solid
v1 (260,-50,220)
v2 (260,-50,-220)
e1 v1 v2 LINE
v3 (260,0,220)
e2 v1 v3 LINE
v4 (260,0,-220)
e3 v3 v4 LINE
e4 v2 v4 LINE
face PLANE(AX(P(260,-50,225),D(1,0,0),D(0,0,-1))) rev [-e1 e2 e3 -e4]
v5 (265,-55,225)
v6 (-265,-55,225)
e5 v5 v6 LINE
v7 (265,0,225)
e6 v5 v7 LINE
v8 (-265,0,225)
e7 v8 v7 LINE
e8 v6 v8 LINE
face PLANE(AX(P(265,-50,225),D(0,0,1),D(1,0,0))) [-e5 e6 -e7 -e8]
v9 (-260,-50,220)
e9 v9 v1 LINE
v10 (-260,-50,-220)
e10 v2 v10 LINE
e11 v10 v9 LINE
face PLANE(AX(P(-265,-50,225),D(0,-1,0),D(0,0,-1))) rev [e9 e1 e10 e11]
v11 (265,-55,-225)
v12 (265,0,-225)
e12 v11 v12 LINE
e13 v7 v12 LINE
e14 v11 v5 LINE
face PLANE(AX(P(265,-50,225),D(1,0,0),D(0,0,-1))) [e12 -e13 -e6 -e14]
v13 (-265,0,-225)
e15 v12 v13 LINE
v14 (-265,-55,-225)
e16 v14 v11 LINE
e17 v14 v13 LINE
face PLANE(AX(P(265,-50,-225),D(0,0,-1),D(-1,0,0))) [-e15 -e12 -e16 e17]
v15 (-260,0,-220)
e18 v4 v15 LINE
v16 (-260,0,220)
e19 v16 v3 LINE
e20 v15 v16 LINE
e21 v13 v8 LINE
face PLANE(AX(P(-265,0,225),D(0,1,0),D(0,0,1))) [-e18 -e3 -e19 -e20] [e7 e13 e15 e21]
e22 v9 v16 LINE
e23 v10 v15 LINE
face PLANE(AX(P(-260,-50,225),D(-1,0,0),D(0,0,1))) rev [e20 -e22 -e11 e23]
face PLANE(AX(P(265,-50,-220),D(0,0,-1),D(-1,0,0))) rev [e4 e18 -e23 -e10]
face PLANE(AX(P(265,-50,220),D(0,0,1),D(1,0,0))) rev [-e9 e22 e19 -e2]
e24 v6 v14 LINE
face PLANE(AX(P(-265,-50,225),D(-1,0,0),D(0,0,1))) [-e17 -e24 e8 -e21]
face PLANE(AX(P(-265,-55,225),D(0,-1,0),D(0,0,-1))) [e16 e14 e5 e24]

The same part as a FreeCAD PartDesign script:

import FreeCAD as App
import Part
import Sketcher

V = App.Vector

doc = App.newDocument("Part")
body = doc.addObject("PartDesign::Body", "Body")

sketch1 = body.newObject("Sketcher::SketchObject", "Sketch")
sketch1.AttachmentSupport = (doc.getObject("XZ_Plane"), [""])
sketch1.MapMode = "FlatFace"
sketch1.addGeometry(Part.LineSegment(V(-265, -225, 0), V(-265, 225, 0)), False)
sketch1.addGeometry(Part.LineSegment(V(-265, 225, 0), V(265, 225, 0)), False)
sketch1.addGeometry(Part.LineSegment(V(265, 225, 0), V(265, -225, 0)), False)
sketch1.addGeometry(Part.LineSegment(V(265, -225, 0), V(-265, -225, 0)), False)
sketch1.addGeometry(Part.LineSegment(V(260, 220, 0), V(-260, 220, 0)), False)
sketch1.addGeometry(Part.LineSegment(V(-260, 220, 0), V(-260, -220, 0)), False)
sketch1.addGeometry(Part.LineSegment(V(-260, -220, 0), V(260, -220, 0)), False)
sketch1.addGeometry(Part.LineSegment(V(260, -220, 0), V(260, 220, 0)), False)
sketch1.addConstraint(Sketcher.Constraint("Coincident", 0, 2, 1, 1))
sketch1.addConstraint(Sketcher.Constraint("Coincident", 1, 2, 2, 1))
sketch1.addConstraint(Sketcher.Constraint("Coincident", 2, 2, 3, 1))
sketch1.addConstraint(Sketcher.Constraint("Coincident", 3, 2, 0, 1))
sketch1.addConstraint(Sketcher.Constraint("Coincident", 4, 2, 5, 1))
sketch1.addConstraint(Sketcher.Constraint("Coincident", 5, 2, 6, 1))
sketch1.addConstraint(Sketcher.Constraint("Coincident", 6, 2, 7, 1))
sketch1.addConstraint(Sketcher.Constraint("Coincident", 7, 2, 4, 1))
sketch1.addConstraint(Sketcher.Constraint("Vertical", 0))
sketch1.addConstraint(Sketcher.Constraint("Horizontal", 1))
sketch1.addConstraint(Sketcher.Constraint("Vertical", 2))
sketch1.addConstraint(Sketcher.Constraint("Horizontal", 3))
sketch1.addConstraint(Sketcher.Constraint("Horizontal", 4))
sketch1.addConstraint(Sketcher.Constraint("Vertical", 5))
sketch1.addConstraint(Sketcher.Constraint("Horizontal", 6))
sketch1.addConstraint(Sketcher.Constraint("Vertical", 7))
sketch1.addConstraint(Sketcher.Constraint("Symmetric", 0, 2, 2, 2, -1, 1))
sketch1.addConstraint(Sketcher.Constraint("Symmetric", 4, 2, 6, 2, -1, 1))
sketch1.addConstraint(Sketcher.Constraint("DistanceX", 1, 1, 1, 2, 530.0))
sketch1.addConstraint(Sketcher.Constraint("DistanceX", 4, 2, 4, 1, 520.0))
sketch1.addConstraint(Sketcher.Constraint("DistanceY", 0, 1, 0, 2, 450.0))
sketch1.addConstraint(Sketcher.Constraint("DistanceY", 5, 2, 5, 1, 440.0))
pad1 = body.newObject("PartDesign::Pad", "Pad")
pad1.Profile = sketch1
pad1.Length = 50

sketch2 = body.newObject("Sketcher::SketchObject", "Sketch001")
sketch2.AttachmentSupport = (doc.getObject("XZ_Plane"), [""])
sketch2.MapMode = "FlatFace"
sketch2.AttachmentOffset = App.Placement(V(0, 0, 50), App.Rotation())
sketch2.addGeometry(Part.LineSegment(V(-265, 225, 0), V(-265, -225, 0)), False)
sketch2.addGeometry(Part.LineSegment(V(-265, -225, 0), V(265, -225, 0)), False)
sketch2.addGeometry(Part.LineSegment(V(265, -225, 0), V(265, 225, 0)), False)
sketch2.addGeometry(Part.LineSegment(V(265, 225, 0), V(-265, 225, 0)), False)
sketch2.addConstraint(Sketcher.Constraint("Coincident", 0, 2, 1, 1))
sketch2.addConstraint(Sketcher.Constraint("Coincident", 1, 2, 2, 1))
sketch2.addConstraint(Sketcher.Constraint("Coincident", 2, 2, 3, 1))
sketch2.addConstraint(Sketcher.Constraint("Coincident", 3, 2, 0, 1))
sketch2.addConstraint(Sketcher.Constraint("Vertical", 0))
sketch2.addConstraint(Sketcher.Constraint("Horizontal", 1))
sketch2.addConstraint(Sketcher.Constraint("Vertical", 2))
sketch2.addConstraint(Sketcher.Constraint("Horizontal", 3))
sketch2.addConstraint(Sketcher.Constraint("Symmetric", 0, 2, 2, 2, -1, 1))
sketch2.addConstraint(Sketcher.Constraint("DistanceX", 1, 1, 1, 2, 530.0))
sketch2.addConstraint(Sketcher.Constraint("DistanceY", 0, 2, 0, 1, 450.0))
pad2 = body.newObject("PartDesign::Pad", "Pad001")
pad2.Profile = sketch2
pad2.Length = 5

doc.recompute()
